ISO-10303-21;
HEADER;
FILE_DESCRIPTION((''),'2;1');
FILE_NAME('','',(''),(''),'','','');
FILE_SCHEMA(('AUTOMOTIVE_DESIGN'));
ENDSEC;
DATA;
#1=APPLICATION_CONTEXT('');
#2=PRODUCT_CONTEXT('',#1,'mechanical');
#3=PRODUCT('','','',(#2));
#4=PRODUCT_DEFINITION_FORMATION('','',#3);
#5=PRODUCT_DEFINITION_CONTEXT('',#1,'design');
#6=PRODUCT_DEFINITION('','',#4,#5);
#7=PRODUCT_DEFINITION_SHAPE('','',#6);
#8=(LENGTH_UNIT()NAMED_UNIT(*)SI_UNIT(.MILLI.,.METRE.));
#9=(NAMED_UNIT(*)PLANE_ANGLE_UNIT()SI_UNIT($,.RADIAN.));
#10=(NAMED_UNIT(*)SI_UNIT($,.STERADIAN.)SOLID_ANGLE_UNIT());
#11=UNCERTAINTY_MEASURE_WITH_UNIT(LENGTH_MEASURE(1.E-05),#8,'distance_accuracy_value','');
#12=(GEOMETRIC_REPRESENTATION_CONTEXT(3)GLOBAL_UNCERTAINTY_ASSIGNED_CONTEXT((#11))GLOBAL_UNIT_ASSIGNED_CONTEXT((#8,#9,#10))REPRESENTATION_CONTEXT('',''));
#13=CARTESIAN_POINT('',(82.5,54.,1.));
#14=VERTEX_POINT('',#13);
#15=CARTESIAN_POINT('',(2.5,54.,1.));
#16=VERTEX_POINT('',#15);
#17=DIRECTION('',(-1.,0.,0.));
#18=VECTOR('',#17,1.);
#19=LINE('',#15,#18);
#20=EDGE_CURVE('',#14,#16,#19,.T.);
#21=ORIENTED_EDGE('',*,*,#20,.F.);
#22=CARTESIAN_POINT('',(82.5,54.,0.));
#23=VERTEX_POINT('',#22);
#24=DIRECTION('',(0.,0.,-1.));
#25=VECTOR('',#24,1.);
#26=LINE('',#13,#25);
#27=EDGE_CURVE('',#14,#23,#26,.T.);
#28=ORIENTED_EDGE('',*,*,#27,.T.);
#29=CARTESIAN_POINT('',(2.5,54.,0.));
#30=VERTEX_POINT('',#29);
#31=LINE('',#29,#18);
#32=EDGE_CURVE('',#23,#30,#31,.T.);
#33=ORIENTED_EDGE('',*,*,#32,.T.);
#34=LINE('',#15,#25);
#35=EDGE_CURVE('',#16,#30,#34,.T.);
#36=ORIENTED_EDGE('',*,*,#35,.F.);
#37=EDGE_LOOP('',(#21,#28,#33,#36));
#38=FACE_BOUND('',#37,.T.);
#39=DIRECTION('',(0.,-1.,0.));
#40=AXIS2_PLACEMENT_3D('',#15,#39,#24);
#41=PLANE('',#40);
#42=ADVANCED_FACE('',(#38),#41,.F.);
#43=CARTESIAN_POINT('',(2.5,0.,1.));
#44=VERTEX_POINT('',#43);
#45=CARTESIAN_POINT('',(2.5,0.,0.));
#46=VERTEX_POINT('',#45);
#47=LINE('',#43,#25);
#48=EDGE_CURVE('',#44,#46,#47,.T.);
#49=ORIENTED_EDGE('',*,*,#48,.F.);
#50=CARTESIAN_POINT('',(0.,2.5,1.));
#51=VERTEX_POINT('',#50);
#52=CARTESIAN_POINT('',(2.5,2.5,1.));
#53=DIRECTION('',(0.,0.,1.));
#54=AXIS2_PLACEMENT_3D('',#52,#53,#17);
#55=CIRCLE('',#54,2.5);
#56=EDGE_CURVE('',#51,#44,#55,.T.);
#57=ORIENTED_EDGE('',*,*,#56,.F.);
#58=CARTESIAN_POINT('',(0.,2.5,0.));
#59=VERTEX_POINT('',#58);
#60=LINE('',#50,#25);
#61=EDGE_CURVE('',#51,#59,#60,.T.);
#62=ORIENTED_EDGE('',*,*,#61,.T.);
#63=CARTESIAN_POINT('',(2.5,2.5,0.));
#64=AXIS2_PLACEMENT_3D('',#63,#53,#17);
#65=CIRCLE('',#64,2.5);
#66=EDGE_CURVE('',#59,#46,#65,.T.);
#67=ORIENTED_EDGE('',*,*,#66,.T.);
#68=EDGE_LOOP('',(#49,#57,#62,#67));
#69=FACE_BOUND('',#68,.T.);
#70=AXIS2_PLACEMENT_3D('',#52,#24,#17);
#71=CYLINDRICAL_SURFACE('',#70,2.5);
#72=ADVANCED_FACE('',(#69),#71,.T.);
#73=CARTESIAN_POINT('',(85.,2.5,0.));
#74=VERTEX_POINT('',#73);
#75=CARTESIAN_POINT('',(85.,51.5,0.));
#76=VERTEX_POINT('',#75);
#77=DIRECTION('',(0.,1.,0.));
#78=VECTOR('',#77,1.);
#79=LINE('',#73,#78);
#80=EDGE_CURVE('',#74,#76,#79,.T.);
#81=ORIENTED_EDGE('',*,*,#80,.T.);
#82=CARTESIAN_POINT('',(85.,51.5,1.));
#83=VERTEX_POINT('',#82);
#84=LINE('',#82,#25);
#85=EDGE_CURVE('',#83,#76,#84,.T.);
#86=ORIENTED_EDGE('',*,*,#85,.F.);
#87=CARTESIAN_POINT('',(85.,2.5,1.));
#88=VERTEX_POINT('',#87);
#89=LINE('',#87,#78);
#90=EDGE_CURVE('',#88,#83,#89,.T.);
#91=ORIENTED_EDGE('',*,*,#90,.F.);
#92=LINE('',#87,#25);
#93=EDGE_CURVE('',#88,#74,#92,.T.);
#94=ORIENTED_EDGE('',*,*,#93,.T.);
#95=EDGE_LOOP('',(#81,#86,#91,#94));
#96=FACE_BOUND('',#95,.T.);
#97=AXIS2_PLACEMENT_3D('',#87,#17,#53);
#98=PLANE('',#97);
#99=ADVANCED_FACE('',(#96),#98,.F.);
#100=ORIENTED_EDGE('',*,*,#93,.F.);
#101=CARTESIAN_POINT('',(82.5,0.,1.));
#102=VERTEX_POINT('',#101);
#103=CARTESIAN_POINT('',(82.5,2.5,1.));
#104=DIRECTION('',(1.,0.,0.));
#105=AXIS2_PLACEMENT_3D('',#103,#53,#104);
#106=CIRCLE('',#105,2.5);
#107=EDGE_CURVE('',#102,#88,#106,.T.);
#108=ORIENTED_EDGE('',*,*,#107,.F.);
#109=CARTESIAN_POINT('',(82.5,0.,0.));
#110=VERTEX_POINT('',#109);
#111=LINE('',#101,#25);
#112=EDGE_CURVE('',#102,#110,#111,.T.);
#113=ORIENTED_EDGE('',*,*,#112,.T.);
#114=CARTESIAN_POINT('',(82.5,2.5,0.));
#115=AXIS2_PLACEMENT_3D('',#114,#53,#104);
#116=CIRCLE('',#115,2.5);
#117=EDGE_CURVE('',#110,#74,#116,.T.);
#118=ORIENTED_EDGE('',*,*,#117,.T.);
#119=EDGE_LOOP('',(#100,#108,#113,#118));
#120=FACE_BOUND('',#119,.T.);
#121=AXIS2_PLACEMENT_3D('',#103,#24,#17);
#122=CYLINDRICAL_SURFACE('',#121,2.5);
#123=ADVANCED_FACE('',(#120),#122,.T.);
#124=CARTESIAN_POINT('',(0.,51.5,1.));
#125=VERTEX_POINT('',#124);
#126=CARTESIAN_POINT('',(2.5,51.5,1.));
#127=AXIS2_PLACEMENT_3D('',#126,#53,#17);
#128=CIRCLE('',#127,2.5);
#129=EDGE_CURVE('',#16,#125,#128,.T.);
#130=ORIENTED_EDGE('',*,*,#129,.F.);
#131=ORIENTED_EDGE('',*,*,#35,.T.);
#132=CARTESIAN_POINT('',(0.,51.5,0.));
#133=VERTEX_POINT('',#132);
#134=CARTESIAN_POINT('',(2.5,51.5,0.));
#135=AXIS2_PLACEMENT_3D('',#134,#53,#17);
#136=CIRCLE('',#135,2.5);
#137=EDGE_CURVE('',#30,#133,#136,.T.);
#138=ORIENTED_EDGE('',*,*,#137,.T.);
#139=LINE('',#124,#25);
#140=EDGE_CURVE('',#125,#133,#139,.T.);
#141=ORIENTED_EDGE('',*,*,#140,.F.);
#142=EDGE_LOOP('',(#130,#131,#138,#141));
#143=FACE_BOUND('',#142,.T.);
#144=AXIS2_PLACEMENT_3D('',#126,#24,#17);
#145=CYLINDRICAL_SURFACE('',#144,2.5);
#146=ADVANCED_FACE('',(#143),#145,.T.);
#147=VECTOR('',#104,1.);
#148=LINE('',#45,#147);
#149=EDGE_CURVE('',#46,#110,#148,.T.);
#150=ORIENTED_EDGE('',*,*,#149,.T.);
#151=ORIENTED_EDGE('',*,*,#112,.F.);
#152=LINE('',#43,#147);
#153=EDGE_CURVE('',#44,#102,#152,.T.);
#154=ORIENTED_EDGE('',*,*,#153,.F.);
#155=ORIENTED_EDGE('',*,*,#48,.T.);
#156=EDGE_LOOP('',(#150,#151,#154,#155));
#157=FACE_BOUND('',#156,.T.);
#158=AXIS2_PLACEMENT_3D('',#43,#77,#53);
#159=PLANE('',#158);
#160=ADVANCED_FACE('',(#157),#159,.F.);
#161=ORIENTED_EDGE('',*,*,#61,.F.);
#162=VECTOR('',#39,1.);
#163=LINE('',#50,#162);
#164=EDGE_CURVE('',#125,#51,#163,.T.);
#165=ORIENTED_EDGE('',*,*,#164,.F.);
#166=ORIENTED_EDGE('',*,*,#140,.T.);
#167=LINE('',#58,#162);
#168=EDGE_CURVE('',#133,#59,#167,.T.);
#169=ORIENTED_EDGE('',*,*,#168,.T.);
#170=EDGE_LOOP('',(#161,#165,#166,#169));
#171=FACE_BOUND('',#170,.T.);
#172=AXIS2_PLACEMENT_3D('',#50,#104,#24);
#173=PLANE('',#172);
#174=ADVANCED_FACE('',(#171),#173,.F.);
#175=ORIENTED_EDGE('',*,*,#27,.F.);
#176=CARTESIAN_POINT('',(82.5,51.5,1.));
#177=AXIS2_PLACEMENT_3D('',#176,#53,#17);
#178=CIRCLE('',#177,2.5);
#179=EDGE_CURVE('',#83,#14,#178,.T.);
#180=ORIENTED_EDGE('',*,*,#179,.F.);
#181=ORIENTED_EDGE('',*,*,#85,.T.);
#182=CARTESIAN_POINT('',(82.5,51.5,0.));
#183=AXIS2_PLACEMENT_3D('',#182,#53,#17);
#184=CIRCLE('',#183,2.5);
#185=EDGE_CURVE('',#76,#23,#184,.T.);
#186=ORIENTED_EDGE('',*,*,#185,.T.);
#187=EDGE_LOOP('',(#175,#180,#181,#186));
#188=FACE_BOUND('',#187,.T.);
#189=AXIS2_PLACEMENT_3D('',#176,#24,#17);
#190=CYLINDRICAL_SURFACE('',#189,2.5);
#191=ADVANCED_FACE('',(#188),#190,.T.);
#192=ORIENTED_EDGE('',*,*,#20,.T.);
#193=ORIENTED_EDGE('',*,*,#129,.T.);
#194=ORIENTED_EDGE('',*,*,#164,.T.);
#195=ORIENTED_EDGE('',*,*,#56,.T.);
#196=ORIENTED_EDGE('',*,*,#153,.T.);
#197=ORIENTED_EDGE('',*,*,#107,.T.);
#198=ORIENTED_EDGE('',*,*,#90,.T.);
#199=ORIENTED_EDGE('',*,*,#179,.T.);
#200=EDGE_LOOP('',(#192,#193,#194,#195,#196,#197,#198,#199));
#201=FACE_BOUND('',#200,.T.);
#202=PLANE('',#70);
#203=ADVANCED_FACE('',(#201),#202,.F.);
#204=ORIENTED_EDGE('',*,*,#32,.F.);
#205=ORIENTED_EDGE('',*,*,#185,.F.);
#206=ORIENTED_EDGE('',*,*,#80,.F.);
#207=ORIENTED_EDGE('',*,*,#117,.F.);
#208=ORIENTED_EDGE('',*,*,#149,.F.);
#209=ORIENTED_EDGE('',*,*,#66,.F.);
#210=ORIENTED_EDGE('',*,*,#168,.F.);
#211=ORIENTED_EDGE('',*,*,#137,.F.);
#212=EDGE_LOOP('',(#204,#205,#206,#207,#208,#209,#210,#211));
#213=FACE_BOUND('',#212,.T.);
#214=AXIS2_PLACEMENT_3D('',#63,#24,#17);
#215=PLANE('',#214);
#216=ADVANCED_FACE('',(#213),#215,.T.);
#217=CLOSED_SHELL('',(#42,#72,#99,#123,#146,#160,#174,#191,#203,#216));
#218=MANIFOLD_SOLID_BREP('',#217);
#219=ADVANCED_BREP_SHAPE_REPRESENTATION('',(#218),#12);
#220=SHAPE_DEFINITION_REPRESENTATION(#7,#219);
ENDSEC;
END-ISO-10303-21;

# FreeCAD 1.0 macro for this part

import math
import FreeCAD as App
import Part
import Sketcher

doc = App.newDocument("Part")
params = doc.addObject("Spreadsheet::Sheet", "Params")
for row, (alias, value) in enumerate([
    ("sketch1_radius", "2.5 mm"),
    ("sketch1_width", "80 mm"),
    ("sketch1_height", "49 mm"),
    ("pad1_length", "1 mm"),
], start=1):
    params.set(f"A{row}", alias)
    params.set(f"B{row}", "=" + value)
    params.setAlias(f"B{row}", alias)

body = doc.addObject("PartDesign::Body", "Body")

# Sketch on XY plane
sketch1 = body.newObject("Sketcher::SketchObject", "Sketch")
sketch1.AttachmentSupport = (doc.getObject("XY_Plane"), [""])
sketch1.MapMode = "FlatFace"
sketch1.addGeometry(Part.LineSegment(App.Vector(2.5, 0, 0), App.Vector(82.5, 0, 0)), False)
sketch1.addGeometry(Part.ArcOfCircle(Part.Circle(App.Vector(82.5, 2.5, 0), App.Vector(0, 0, 1), 2.5), math.radians(-90), math.radians(0)), False)
sketch1.addGeometry(Part.LineSegment(App.Vector(85, 2.5, 0), App.Vector(85, 51.5, 0)), False)
sketch1.addGeometry(Part.ArcOfCircle(Part.Circle(App.Vector(82.5, 51.5, 0), App.Vector(0, 0, 1), 2.5), math.radians(0), math.radians(90)), False)
sketch1.addGeometry(Part.LineSegment(App.Vector(82.5, 54, 0), App.Vector(2.5, 54, 0)), False)
sketch1.addGeometry(Part.ArcOfCircle(Part.Circle(App.Vector(2.5, 51.5, 0), App.Vector(0, 0, 1), 2.5), math.radians(90), math.radians(180)), False)
sketch1.addGeometry(Part.LineSegment(App.Vector(0, 51.5, 0), App.Vector(0, 2.5, 0)), False)
sketch1.addGeometry(Part.ArcOfCircle(Part.Circle(App.Vector(2.5, 2.5, 0), App.Vector(0, 0, 1), 2.5), math.radians(180), math.radians(270)), False)
sketch1.addConstraint(Sketcher.Constraint("Tangent", 0, 2, 1, 1))
sketch1.addConstraint(Sketcher.Constraint("Tangent", 1, 2, 2, 1))
sketch1.addConstraint(Sketcher.Constraint("Tangent", 2, 2, 3, 1))
sketch1.addConstraint(Sketcher.Constraint("Tangent", 3, 2, 4, 1))
sketch1.addConstraint(Sketcher.Constraint("Tangent", 4, 2, 5, 1))
sketch1.addConstraint(Sketcher.Constraint("Tangent", 5, 2, 6, 1))
sketch1.addConstraint(Sketcher.Constraint("Tangent", 6, 2, 7, 1))
sketch1.addConstraint(Sketcher.Constraint("Tangent", 7, 2, 0, 1))
sketch1.addConstraint(Sketcher.Constraint("Horizontal", 0))
sketch1.addConstraint(Sketcher.Constraint("Vertical", 2))
sketch1.addConstraint(Sketcher.Constraint("Horizontal", 4))
sketch1.addConstraint(Sketcher.Constraint("Vertical", 6))
sketch1.addConstraint(Sketcher.Constraint("Equal", 1, 3))
sketch1.addConstraint(Sketcher.Constraint("Equal", 3, 5))
sketch1.addConstraint(Sketcher.Constraint("Equal", 5, 7))
sketch1.addConstraint(Sketcher.Constraint("PointOnObject", 0, 2, -1))
sketch1.addConstraint(Sketcher.Constraint("PointOnObject", 5, 2, -2))
sketch1.addConstraint(Sketcher.Constraint("Radius", 1, 2.5))
sketch1.addConstraint(Sketcher.Constraint("DistanceX", 0, 1, 0, 2, 80.0))
sketch1.addConstraint(Sketcher.Constraint("DistanceY", 2, 1, 2, 2, 49.0))
sketch1.setExpression("Constraints[17]", "Params.sketch1_radius")
sketch1.setExpression("Constraints[18]", "Params.sketch1_width")
sketch1.setExpression("Constraints[19]", "Params.sketch1_height")
pad1 = body.newObject("PartDesign::Pad", "Pad")
pad1.Profile = sketch1
pad1.setExpression("Length", "Params.pad1_length")

doc.recompute()
